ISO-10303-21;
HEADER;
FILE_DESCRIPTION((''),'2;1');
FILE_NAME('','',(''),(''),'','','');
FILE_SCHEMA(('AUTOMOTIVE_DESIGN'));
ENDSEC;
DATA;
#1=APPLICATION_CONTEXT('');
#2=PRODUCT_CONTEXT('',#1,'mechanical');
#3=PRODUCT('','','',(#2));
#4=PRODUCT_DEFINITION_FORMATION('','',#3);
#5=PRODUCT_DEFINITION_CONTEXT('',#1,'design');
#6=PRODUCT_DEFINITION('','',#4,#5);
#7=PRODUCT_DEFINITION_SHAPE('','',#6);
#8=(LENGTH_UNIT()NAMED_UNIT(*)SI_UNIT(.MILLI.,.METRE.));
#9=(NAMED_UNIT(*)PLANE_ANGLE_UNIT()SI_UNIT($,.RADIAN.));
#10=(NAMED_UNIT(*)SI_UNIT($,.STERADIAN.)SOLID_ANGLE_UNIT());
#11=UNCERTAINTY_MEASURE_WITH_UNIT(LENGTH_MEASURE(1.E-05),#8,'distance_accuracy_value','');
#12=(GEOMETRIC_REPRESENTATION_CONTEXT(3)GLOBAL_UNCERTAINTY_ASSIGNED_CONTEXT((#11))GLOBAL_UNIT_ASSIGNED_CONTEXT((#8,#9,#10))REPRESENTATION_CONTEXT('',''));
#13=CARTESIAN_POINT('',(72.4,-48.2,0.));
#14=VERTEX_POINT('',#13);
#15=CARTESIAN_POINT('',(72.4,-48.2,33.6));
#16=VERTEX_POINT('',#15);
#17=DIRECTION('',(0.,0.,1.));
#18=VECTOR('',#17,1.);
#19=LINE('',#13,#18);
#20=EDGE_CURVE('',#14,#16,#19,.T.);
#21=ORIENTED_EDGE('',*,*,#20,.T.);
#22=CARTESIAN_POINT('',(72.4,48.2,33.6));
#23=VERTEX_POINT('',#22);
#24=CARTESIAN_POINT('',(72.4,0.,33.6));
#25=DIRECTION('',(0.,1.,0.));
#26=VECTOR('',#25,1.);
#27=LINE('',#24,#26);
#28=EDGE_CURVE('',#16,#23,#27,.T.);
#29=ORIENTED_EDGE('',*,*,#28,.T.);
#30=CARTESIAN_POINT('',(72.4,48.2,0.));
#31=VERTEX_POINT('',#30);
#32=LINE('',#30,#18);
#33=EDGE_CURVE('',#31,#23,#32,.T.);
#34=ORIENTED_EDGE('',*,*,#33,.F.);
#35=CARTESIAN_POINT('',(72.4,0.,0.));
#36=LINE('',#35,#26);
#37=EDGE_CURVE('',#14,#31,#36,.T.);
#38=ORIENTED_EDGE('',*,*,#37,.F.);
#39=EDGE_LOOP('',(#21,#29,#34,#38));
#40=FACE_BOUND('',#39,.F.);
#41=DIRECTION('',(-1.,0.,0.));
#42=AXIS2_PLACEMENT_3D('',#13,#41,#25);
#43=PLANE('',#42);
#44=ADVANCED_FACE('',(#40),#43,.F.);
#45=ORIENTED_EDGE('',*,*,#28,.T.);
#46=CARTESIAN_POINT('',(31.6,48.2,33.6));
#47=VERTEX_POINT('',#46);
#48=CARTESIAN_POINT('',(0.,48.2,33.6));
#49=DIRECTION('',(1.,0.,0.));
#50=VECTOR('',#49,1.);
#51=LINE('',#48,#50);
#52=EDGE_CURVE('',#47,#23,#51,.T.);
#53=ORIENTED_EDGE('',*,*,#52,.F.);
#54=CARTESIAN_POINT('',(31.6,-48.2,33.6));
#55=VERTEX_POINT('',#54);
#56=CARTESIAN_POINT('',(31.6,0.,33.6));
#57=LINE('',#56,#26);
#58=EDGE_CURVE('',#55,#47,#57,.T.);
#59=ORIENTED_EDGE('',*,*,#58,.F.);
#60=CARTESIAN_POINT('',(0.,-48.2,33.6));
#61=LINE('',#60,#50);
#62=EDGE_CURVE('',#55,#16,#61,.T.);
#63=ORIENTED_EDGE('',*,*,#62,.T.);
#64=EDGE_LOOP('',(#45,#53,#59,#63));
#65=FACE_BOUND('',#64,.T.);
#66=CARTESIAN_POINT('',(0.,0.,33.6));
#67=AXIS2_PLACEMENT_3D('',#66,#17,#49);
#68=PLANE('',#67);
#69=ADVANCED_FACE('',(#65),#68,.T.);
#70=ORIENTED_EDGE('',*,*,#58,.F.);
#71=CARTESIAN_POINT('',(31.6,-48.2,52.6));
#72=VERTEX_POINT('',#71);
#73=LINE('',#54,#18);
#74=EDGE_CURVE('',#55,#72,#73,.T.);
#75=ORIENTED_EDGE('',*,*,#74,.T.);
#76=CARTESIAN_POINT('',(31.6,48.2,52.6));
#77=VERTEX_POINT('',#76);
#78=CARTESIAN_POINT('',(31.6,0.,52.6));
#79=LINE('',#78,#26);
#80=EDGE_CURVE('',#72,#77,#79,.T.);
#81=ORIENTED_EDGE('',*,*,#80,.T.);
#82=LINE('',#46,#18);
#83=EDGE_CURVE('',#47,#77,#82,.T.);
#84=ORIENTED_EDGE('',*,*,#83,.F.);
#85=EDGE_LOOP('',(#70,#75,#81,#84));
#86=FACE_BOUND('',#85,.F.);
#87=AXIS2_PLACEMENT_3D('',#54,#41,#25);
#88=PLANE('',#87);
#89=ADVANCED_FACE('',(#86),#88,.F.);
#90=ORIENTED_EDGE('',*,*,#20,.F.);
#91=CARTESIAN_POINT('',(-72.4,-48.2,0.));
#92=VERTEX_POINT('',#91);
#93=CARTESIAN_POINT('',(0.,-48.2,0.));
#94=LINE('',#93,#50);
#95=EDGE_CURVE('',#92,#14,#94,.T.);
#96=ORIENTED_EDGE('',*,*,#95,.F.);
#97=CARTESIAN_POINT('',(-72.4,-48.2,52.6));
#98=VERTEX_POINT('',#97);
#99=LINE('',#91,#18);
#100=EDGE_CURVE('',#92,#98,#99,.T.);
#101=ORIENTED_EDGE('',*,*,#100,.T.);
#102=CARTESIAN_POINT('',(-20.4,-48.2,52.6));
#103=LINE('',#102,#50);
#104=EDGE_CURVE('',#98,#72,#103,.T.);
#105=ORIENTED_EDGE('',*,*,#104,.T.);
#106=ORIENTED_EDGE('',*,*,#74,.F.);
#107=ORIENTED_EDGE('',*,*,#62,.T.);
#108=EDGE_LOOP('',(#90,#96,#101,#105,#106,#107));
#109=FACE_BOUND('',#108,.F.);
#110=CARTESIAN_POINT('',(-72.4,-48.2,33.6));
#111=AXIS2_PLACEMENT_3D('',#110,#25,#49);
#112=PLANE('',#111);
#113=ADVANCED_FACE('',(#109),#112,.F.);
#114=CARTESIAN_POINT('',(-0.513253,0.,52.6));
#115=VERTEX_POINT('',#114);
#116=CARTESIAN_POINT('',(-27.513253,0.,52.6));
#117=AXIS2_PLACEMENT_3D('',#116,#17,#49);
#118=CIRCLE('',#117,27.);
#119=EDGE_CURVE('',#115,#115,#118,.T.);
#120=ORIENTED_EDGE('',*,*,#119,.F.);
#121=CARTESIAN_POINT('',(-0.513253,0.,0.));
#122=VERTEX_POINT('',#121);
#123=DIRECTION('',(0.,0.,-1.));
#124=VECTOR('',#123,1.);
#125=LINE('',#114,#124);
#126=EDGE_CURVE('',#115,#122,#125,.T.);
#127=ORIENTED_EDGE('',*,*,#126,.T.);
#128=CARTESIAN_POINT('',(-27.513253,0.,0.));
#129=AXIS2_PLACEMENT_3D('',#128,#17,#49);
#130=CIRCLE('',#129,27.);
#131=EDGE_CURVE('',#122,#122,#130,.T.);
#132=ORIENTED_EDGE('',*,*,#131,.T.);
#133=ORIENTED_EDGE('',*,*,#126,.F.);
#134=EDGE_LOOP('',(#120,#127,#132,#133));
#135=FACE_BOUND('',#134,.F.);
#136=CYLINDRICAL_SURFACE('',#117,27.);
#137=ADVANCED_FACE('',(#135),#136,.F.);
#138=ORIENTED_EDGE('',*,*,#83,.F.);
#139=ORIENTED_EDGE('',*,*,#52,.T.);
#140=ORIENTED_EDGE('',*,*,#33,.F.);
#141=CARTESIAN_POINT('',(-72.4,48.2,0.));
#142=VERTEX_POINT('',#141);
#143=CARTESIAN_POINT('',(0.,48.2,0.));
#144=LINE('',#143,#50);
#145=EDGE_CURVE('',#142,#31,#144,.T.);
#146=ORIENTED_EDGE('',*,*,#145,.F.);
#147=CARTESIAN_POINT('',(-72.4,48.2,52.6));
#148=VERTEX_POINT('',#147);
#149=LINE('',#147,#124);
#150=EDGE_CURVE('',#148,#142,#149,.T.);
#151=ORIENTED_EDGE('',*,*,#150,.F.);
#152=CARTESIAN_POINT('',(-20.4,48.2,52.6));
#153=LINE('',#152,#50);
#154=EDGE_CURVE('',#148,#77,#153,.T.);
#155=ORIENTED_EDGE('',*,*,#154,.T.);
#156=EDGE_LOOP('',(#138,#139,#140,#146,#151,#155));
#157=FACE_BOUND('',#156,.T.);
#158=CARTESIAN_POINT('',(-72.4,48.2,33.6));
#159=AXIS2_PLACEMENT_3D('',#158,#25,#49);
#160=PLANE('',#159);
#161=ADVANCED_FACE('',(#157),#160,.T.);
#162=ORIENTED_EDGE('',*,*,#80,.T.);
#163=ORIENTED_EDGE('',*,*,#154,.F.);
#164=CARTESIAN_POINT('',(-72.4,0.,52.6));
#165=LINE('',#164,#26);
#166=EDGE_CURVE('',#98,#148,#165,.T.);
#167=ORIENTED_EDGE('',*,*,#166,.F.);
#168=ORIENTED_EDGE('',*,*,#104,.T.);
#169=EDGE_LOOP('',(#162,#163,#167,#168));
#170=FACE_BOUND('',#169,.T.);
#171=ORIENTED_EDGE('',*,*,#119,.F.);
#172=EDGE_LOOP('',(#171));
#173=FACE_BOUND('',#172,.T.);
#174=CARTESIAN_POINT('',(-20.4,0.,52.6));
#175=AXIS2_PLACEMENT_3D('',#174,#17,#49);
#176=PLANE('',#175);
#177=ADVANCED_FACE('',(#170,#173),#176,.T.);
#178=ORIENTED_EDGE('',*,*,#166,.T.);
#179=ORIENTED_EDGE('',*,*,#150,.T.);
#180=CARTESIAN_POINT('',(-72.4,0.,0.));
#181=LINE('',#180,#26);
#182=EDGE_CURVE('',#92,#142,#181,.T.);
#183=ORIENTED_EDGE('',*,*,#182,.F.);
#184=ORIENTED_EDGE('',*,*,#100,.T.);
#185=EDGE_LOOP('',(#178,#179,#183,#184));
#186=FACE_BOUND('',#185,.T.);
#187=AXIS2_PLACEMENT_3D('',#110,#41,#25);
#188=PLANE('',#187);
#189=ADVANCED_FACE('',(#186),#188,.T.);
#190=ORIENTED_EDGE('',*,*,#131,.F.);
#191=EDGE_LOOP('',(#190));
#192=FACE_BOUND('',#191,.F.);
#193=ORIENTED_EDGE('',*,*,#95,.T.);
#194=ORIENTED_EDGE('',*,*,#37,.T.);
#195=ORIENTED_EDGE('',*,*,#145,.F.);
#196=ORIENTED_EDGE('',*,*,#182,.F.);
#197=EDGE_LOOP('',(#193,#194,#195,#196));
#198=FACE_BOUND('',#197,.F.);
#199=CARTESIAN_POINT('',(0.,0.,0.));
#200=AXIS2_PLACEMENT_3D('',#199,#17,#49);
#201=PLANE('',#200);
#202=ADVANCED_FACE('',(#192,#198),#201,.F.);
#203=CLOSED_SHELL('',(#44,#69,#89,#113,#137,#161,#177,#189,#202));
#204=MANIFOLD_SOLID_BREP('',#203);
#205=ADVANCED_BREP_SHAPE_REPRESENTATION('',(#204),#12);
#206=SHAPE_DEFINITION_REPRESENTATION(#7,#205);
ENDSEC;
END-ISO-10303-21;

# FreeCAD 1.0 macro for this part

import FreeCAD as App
import Part
import Sketcher

V = App.Vector

doc = App.newDocument("Part")
body = doc.addObject("PartDesign::Body", "Body")

sketch1 = body.newObject("Sketcher::SketchObject", "Sketch")
sketch1.AttachmentSupport = (doc.getObject("XY_Plane"), [""])
sketch1.MapMode = "FlatFace"
sketch1.addGeometry(Part.LineSegment(V(-72, 48, 0), V(-72, -48, 0)), False)
sketch1.addGeometry(Part.LineSegment(V(-72, -48, 0), V(72, -48, 0)), False)
sketch1.addGeometry(Part.LineSegment(V(72, -48, 0), V(72, 48, 0)), False)
sketch1.addGeometry(Part.LineSegment(V(72, 48, 0), V(-72, 48, 0)), False)
sketch1.addConstraint(Sketcher.Constraint("Coincident", 0, 2, 1, 1))
sketch1.addConstraint(Sketcher.Constraint("Coincident", 1, 2, 2, 1))
sketch1.addConstraint(Sketcher.Constraint("Coincident", 2, 2, 3, 1))
sketch1.addConstraint(Sketcher.Constraint("Coincident", 3, 2, 0, 1))
sketch1.addConstraint(Sketcher.Constraint("Vertical", 0))
sketch1.addConstraint(Sketcher.Constraint("Horizontal", 1))
sketch1.addConstraint(Sketcher.Constraint("Vertical", 2))
sketch1.addConstraint(Sketcher.Constraint("Horizontal", 3))
sketch1.addConstraint(Sketcher.Constraint("Symmetric", 0, 2, 2, 2, -1, 1))
sketch1.addConstraint(Sketcher.Constraint("DistanceX", 1, 1, 1, 2, 144.8))
sketch1.addConstraint(Sketcher.Constraint("DistanceY", 0, 2, 0, 1, 96.4))
pad1 = body.newObject("PartDesign::Pad", "Pad")
pad1.Profile = sketch1
pad1.Length = 33.6

sketch2 = body.newObject("Sketcher::SketchObject", "Sketch001")
sketch2.AttachmentSupport = (doc.getObject("XY_Plane"), [""])
sketch2.MapMode = "FlatFace"
sketch2.AttachmentOffset = App.Placement(V(0, 0, 33.6), App.Rotation())
sketch2.addGeometry(Part.LineSegment(V(-72, 48, 0), V(-72, -48, 0)), False)
sketch2.addGeometry(Part.LineSegment(V(-72, -48, 0), V(32, -48, 0)), False)
sketch2.addGeometry(Part.LineSegment(V(32, -48, 0), V(32, 48, 0)), False)
sketch2.addGeometry(Part.LineSegment(V(32, 48, 0), V(-72, 48, 0)), False)
sketch2.addConstraint(Sketcher.Constraint("Coincident", 0, 2, 1, 1))
sketch2.addConstraint(Sketcher.Constraint("Coincident", 1, 2, 2, 1))
sketch2.addConstraint(Sketcher.Constraint("Coincident", 2, 2, 3, 1))
sketch2.addConstraint(Sketcher.Constraint("Coincident", 3, 2, 0, 1))
sketch2.addConstraint(Sketcher.Constraint("Vertical", 0))
sketch2.addConstraint(Sketcher.Constraint("Horizontal", 1))
sketch2.addConstraint(Sketcher.Constraint("Vertical", 2))
sketch2.addConstraint(Sketcher.Constraint("Horizontal", 3))
sketch2.addConstraint(Sketcher.Constraint("DistanceX", 1, 1, 1, 2, 104.0))
sketch2.addConstraint(Sketcher.Constraint("DistanceY", 0, 2, 0, 1, 96.4))
sketch2.addConstraint(Sketcher.Constraint("DistanceX", 0, 2, -1, 1, 72.4))
sketch2.addConstraint(Sketcher.Constraint("DistanceY", 0, 2, -1, 1, 48.2))
pad2 = body.newObject("PartDesign::Pad", "Pad001")
pad2.Profile = sketch2
pad2.Length = 19

sketch3 = body.newObject("Sketcher::SketchObject", "Sketch002")
sketch3.AttachmentSupport = (doc.getObject("XY_Plane"), [""])
sketch3.MapMode = "FlatFace"
sketch3.AttachmentOffset = App.Placement(V(0, 0, 52.6), App.Rotation())
sketch3.addGeometry(Part.Circle(V(-28, 0, 0), V(0, 0, 1), 27), False)
sketch3.addConstraint(Sketcher.Constraint("PointOnObject", 0, 3, -1))
sketch3.addConstraint(Sketcher.Constraint("Diameter", 0, 54.0))
sketch3.addConstraint(Sketcher.Constraint("DistanceX", 0, 3, -1, 1, 27.513253))
pocket1 = body.newObject("PartDesign::Pocket", "Pocket")
pocket1.Profile = sketch3
pocket1.Length = 159

doc.recompute()
